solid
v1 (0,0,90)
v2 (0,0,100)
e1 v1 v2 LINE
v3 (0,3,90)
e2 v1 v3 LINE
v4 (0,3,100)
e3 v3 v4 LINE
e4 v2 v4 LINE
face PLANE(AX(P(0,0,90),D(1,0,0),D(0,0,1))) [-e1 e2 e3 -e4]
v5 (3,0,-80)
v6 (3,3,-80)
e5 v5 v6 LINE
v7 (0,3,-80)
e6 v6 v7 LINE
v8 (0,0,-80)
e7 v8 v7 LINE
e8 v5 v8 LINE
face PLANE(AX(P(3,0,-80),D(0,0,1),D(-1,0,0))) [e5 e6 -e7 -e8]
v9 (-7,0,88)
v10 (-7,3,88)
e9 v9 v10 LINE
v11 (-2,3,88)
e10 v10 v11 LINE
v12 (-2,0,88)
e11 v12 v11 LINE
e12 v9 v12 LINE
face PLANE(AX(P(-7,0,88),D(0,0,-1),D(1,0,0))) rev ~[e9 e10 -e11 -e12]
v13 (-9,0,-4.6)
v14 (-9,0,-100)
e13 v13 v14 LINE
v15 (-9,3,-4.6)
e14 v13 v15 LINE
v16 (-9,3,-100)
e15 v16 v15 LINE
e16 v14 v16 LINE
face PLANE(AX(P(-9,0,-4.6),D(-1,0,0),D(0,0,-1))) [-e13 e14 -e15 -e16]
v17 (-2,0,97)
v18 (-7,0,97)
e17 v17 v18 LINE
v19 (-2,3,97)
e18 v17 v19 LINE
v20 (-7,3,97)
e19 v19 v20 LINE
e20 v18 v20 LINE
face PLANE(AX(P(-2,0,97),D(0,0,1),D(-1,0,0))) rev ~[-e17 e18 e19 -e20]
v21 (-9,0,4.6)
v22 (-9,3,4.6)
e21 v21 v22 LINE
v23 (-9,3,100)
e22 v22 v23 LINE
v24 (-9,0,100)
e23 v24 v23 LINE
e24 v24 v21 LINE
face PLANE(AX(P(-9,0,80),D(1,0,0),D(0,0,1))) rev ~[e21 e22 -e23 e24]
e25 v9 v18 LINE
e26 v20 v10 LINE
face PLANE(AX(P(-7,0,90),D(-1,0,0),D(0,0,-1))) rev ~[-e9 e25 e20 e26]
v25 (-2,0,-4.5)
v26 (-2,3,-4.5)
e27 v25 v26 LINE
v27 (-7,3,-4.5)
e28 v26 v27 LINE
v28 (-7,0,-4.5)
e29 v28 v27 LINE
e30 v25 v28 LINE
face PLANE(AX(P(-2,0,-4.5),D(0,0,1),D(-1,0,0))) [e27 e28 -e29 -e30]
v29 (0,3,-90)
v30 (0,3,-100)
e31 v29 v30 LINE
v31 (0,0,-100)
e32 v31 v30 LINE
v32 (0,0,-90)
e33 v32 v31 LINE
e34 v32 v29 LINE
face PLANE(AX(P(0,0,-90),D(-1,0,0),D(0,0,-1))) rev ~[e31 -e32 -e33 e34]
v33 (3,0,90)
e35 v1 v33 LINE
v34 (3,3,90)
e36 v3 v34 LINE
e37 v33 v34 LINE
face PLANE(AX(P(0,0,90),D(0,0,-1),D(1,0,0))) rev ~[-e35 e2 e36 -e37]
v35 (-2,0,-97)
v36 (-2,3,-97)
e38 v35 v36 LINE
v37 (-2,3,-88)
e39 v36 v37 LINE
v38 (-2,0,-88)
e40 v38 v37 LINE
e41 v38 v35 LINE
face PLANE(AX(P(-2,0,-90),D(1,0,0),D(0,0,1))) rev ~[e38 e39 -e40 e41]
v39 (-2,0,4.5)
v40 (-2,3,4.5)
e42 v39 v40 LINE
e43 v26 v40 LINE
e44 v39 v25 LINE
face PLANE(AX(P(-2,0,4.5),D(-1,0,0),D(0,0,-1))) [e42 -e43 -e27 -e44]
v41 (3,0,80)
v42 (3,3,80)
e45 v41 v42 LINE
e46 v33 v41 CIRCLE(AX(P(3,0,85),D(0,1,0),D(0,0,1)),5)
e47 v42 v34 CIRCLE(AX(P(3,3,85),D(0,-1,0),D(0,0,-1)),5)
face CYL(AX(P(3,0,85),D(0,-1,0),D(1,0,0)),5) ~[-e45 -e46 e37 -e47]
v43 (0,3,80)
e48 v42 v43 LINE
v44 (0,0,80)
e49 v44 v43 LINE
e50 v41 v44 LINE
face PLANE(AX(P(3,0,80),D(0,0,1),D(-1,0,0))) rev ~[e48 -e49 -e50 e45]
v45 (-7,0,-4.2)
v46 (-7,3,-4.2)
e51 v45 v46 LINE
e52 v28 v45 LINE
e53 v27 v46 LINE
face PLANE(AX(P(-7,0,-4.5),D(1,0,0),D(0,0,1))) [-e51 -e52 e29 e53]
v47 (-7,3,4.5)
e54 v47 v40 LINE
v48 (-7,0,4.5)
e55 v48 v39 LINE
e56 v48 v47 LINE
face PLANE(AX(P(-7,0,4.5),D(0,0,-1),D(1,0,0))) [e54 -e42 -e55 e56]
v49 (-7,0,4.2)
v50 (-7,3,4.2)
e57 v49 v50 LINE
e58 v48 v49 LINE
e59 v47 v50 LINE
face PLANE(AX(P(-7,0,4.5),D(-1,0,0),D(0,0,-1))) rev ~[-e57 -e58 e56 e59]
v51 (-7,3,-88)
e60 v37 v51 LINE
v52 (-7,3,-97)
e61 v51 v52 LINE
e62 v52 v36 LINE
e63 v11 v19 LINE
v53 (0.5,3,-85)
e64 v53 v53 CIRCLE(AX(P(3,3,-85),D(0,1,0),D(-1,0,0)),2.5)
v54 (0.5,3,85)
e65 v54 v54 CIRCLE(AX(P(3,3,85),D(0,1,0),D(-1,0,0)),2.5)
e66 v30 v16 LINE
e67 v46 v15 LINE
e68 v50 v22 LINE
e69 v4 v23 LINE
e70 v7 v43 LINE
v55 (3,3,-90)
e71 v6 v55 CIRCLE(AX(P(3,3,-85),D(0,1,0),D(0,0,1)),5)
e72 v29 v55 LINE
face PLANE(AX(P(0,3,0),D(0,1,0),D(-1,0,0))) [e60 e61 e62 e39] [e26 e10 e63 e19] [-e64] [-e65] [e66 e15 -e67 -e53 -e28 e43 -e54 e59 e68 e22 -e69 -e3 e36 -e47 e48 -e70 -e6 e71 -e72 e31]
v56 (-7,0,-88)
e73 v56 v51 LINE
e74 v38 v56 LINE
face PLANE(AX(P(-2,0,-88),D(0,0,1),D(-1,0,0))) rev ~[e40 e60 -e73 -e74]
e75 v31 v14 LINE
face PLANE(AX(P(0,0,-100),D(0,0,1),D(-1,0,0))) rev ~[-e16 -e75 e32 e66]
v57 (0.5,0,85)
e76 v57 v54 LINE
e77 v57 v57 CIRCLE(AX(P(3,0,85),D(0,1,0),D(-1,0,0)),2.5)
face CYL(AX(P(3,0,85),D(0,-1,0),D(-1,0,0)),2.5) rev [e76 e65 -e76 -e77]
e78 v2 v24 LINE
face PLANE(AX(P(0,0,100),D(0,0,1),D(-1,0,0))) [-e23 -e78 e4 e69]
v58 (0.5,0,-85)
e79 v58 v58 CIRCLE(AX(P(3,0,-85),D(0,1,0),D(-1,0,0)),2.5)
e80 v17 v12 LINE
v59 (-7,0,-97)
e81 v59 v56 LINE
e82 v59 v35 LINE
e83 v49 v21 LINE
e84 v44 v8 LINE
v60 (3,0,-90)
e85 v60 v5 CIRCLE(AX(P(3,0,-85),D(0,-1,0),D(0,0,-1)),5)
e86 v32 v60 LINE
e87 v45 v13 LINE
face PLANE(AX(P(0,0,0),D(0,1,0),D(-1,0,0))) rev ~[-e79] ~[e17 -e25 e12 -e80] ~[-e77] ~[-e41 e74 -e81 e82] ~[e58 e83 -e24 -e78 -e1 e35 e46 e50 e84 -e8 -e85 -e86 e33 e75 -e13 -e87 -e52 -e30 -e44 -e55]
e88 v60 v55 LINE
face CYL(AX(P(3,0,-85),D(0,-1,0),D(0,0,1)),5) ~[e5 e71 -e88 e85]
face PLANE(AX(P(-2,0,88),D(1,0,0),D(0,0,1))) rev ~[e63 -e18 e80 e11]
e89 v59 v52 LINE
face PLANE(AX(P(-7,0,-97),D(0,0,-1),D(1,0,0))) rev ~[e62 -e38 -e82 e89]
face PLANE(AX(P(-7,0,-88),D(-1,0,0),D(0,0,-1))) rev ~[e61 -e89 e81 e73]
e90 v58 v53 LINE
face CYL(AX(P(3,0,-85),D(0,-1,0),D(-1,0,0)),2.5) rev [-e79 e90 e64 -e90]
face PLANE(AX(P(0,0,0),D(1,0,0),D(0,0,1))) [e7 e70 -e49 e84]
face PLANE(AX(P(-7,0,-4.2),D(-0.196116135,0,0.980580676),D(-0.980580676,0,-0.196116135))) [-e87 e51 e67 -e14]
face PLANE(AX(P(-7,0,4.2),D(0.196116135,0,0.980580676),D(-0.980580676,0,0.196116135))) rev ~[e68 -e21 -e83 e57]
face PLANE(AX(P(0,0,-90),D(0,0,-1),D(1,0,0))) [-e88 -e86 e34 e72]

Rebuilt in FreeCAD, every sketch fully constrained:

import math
import FreeCAD as App
import Part
import Sketcher
from FreeCAD import Vector

doc = App.newDocument("Part")
body = doc.addObject("PartDesign::Body", "Body")

sketch1 = doc.addObject("Sketcher::SketchObject", "Sketch")
body.addObject(sketch1)
sketch1.AttachmentSupport = (doc.XZ_Plane, [""])
sketch1.MapMode = "FlatFace"
sketch1.addGeometry(Part.LineSegment(Vector(3, 80, 0), Vector(0, 80, 0)), False)
sketch1.addGeometry(Part.LineSegment(Vector(0, 80, 0), Vector(0, -80, 0)), False)
sketch1.addGeometry(Part.LineSegment(Vector(0, -80, 0), Vector(3, -80, 0)), False)
sketch1.addGeometry(Part.ArcOfCircle(Part.Circle(Vector(3, -85, 0), Vector(0, 0, 1), 5), math.radians(-90), math.radians(90)), False)
sketch1.addGeometry(Part.LineSegment(Vector(3, -90, 0), Vector(0, -90, 0)), False)
sketch1.addGeometry(Part.LineSegment(Vector(0, -90, 0), Vector(0, -100, 0)), False)
sketch1.addGeometry(Part.LineSegment(Vector(0, -100, 0), Vector(-9, -100, 0)), False)
sketch1.addGeometry(Part.LineSegment(Vector(-9, -100, 0), Vector(-9, -4.6, 0)), False)
sketch1.addGeometry(Part.LineSegment(Vector(-9, -4.6, 0), Vector(-7, -4.2, 0)), False)
sketch1.addGeometry(Part.LineSegment(Vector(-7, -4.2, 0), Vector(-7, -4.5, 0)), False)
sketch1.addGeometry(Part.LineSegment(Vector(-7, -4.5, 0), Vector(-2, -4.5, 0)), False)
sketch1.addGeometry(Part.LineSegment(Vector(-2, -4.5, 0), Vector(-2, 4.5, 0)), False)
sketch1.addGeometry(Part.LineSegment(Vector(-2, 4.5, 0), Vector(-7, 4.5, 0)), False)
sketch1.addGeometry(Part.LineSegment(Vector(-7, 4.5, 0), Vector(-7, 4.2, 0)), False)
sketch1.addGeometry(Part.LineSegment(Vector(-7, 4.2, 0), Vector(-9, 4.6, 0)), False)
sketch1.addGeometry(Part.LineSegment(Vector(-9, 4.6, 0), Vector(-9, 100, 0)), False)
sketch1.addGeometry(Part.LineSegment(Vector(-9, 100, 0), Vector(0, 100, 0)), False)
sketch1.addGeometry(Part.LineSegment(Vector(0, 100, 0), Vector(0, 90, 0)), False)
sketch1.addGeometry(Part.LineSegment(Vector(0, 90, 0), Vector(3, 90, 0)), False)
sketch1.addGeometry(Part.ArcOfCircle(Part.Circle(Vector(3, 85, 0), Vector(0, 0, 1), 5), math.radians(-90), math.radians(90)), False)
sketch1.addGeometry(Part.LineSegment(Vector(-2, 88, 0), Vector(-2, 97, 0)), False)
sketch1.addGeometry(Part.LineSegment(Vector(-2, 97, 0), Vector(-7, 97, 0)), False)
sketch1.addGeometry(Part.LineSegment(Vector(-7, 97, 0), Vector(-7, 88, 0)), False)
sketch1.addGeometry(Part.LineSegment(Vector(-7, 88, 0), Vector(-2, 88, 0)), False)
sketch1.addGeometry(Part.Circle(Vector(3, 85, 0), Vector(0, 0, 1), 2.5), False)
sketch1.addGeometry(Part.Circle(Vector(3, -85, 0), Vector(0, 0, 1), 2.5), False)
sketch1.addGeometry(Part.LineSegment(Vector(-7, -88, 0), Vector(-7, -97, 0)), False)
sketch1.addGeometry(Part.LineSegment(Vector(-7, -97, 0), Vector(-2, -97, 0)), False)
sketch1.addGeometry(Part.LineSegment(Vector(-2, -97, 0), Vector(-2, -88, 0)), False)
sketch1.addGeometry(Part.LineSegment(Vector(-2, -88, 0), Vector(-7, -88, 0)), False)
sketch1.addConstraint(Sketcher.Constraint("Coincident", 0, 2, 1, 1))
sketch1.addConstraint(Sketcher.Constraint("Coincident", 1, 2, 2, 1))
sketch1.addConstraint(Sketcher.Constraint("Tangent", 2, 2, 3, 2))
sketch1.addConstraint(Sketcher.Constraint("Tangent", 3, 1, 4, 1))
sketch1.addConstraint(Sketcher.Constraint("Coincident", 4, 2, 5, 1))
sketch1.addConstraint(Sketcher.Constraint("Coincident", 5, 2, 6, 1))
sketch1.addConstraint(Sketcher.Constraint("Coincident", 6, 2, 7, 1))
sketch1.addConstraint(Sketcher.Constraint("Coincident", 7, 2, 8, 1))
sketch1.addConstraint(Sketcher.Constraint("Coincident", 8, 2, 9, 1))
sketch1.addConstraint(Sketcher.Constraint("Coincident", 9, 2, 10, 1))
sketch1.addConstraint(Sketcher.Constraint("Coincident", 10, 2, 11, 1))
sketch1.addConstraint(Sketcher.Constraint("Coincident", 11, 2, 12, 1))
sketch1.addConstraint(Sketcher.Constraint("Coincident", 12, 2, 13, 1))
sketch1.addConstraint(Sketcher.Constraint("Coincident", 13, 2, 14, 1))
sketch1.addConstraint(Sketcher.Constraint("Coincident", 14, 2, 15, 1))
sketch1.addConstraint(Sketcher.Constraint("Coincident", 15, 2, 16, 1))
sketch1.addConstraint(Sketcher.Constraint("Coincident", 16, 2, 17, 1))
sketch1.addConstraint(Sketcher.Constraint("Coincident", 17, 2, 18, 1))
sketch1.addConstraint(Sketcher.Constraint("Tangent", 18, 2, 19, 2))
sketch1.addConstraint(Sketcher.Constraint("Tangent", 19, 1, 0, 1))
sketch1.addConstraint(Sketcher.Constraint("Coincident", 20, 2, 21, 1))
sketch1.addConstraint(Sketcher.Constraint("Coincident", 21, 2, 22, 1))
sketch1.addConstraint(Sketcher.Constraint("Coincident", 22, 2, 23, 1))
sketch1.addConstraint(Sketcher.Constraint("Coincident", 23, 2, 20, 1))
sketch1.addConstraint(Sketcher.Constraint("Coincident", 26, 2, 27, 1))
sketch1.addConstraint(Sketcher.Constraint("Coincident", 27, 2, 28, 1))
sketch1.addConstraint(Sketcher.Constraint("Coincident", 28, 2, 29, 1))
sketch1.addConstraint(Sketcher.Constraint("Coincident", 29, 2, 26, 1))
sketch1.addConstraint(Sketcher.Constraint("Horizontal", 0))
sketch1.addConstraint(Sketcher.Constraint("Vertical", 1))
sketch1.addConstraint(Sketcher.Constraint("Horizontal", 2))
sketch1.addConstraint(Sketcher.Constraint("Horizontal", 4))
sketch1.addConstraint(Sketcher.Constraint("Vertical", 5))
sketch1.addConstraint(Sketcher.Constraint("Horizontal", 6))
sketch1.addConstraint(Sketcher.Constraint("Vertical", 7))
sketch1.addConstraint(Sketcher.Constraint("Vertical", 9))
sketch1.addConstraint(Sketcher.Constraint("Horizontal", 10))
sketch1.addConstraint(Sketcher.Constraint("Vertical", 11))
sketch1.addConstraint(Sketcher.Constraint("Horizontal", 12))
sketch1.addConstraint(Sketcher.Constraint("Vertical", 13))
sketch1.addConstraint(Sketcher.Constraint("Vertical", 15))
sketch1.addConstraint(Sketcher.Constraint("Horizontal", 16))
sketch1.addConstraint(Sketcher.Constraint("Vertical", 17))
sketch1.addConstraint(Sketcher.Constraint("Horizontal", 18))
sketch1.addConstraint(Sketcher.Constraint("Vertical", 20))
sketch1.addConstraint(Sketcher.Constraint("Horizontal", 21))
sketch1.addConstraint(Sketcher.Constraint("Vertical", 22))
sketch1.addConstraint(Sketcher.Constraint("Horizontal", 23))
sketch1.addConstraint(Sketcher.Constraint("Vertical", 26))
sketch1.addConstraint(Sketcher.Constraint("Horizontal", 27))
sketch1.addConstraint(Sketcher.Constraint("Vertical", 28))
sketch1.addConstraint(Sketcher.Constraint("Horizontal", 29))
sketch1.addConstraint(Sketcher.Constraint("Coincident", 24, 3, 19, 3))
sketch1.addConstraint(Sketcher.Constraint("Coincident", 25, 3, 3, 3))
sketch1.addConstraint(Sketcher.Constraint("Equal", 3, 19))
sketch1.addConstraint(Sketcher.Constraint("Equal", 24, 25))
sketch1.addConstraint(Sketcher.Constraint("Symmetric", 0, 2, 1, 2, -1, 1))
sketch1.addConstraint(Sketcher.Constraint("Symmetric", 5, 2, 16, 2, -1, 1))
sketch1.addConstraint(Sketcher.Constraint("Symmetric", 9, 2, 12, 2, -1))
sketch1.addConstraint(Sketcher.Constraint("Symmetric", 7, 2, 14, 2, -1))
sketch1.addConstraint(Sketcher.Constraint("Symmetric", 21, 2, 26, 2, -1))
sketch1.addConstraint(Sketcher.Constraint("Symmetric", 23, 2, 28, 2, -1))
sketch1.addConstraint(Sketcher.Constraint("PointOnObject", 4, 2, -2))
sketch1.addConstraint(Sketcher.Constraint("Vertical", 3, 3, 19, 3))
sketch1.addConstraint(Sketcher.Constraint("Vertical", 11, 2, 20, 2))
sketch1.addConstraint(Sketcher.Constraint("Vertical", 13, 2, 21, 2))
sketch1.addConstraint(Sketcher.Constraint("Equal", 16, 11))
sketch1.addConstraint(Sketcher.Constraint("Equal", 9, 13))
sketch1.addConstraint(Sketcher.Constraint("Equal", 11, 20))
sketch1.addConstraint(Sketcher.Constraint("Diameter", 24, 5.0))
sketch1.addConstraint(Sketcher.Constraint("Radius", 3, 5.0))
sketch1.addConstraint(Sketcher.Constraint("DistanceX", 0, 2, 0, 1, 3.0))
sketch1.addConstraint(Sketcher.Constraint("DistanceX", 6, 2, 6, 1, 9.0))
sketch1.addConstraint(Sketcher.Constraint("DistanceX", 10, 1, 10, 2, 5.0))
sketch1.addConstraint(Sketcher.Constraint("DistanceY", 1, 2, 1, 1, 160.0))
sketch1.addConstraint(Sketcher.Constraint("DistanceY", 5, 2, 5, 1, 10.0))
sketch1.addConstraint(Sketcher.Constraint("DistanceY", 9, 2, 9, 1, 0.3))
sketch1.addConstraint(Sketcher.Constraint("DistanceX", 8, 2, 2, 2, 10.0))
sketch1.addConstraint(Sketcher.Constraint("DistanceY", 20, 2, 16, 2, 3.0))
sketch1.addConstraint(Sketcher.Constraint("DistanceY", 1, 2, 7, 2, 75.4))
pad1 = doc.addObject("PartDesign::Pad", "Pad")
body.addObject(pad1)
pad1.Profile = sketch1
pad1.Length = 3
pad1.Reversed = True

doc.recompute()
